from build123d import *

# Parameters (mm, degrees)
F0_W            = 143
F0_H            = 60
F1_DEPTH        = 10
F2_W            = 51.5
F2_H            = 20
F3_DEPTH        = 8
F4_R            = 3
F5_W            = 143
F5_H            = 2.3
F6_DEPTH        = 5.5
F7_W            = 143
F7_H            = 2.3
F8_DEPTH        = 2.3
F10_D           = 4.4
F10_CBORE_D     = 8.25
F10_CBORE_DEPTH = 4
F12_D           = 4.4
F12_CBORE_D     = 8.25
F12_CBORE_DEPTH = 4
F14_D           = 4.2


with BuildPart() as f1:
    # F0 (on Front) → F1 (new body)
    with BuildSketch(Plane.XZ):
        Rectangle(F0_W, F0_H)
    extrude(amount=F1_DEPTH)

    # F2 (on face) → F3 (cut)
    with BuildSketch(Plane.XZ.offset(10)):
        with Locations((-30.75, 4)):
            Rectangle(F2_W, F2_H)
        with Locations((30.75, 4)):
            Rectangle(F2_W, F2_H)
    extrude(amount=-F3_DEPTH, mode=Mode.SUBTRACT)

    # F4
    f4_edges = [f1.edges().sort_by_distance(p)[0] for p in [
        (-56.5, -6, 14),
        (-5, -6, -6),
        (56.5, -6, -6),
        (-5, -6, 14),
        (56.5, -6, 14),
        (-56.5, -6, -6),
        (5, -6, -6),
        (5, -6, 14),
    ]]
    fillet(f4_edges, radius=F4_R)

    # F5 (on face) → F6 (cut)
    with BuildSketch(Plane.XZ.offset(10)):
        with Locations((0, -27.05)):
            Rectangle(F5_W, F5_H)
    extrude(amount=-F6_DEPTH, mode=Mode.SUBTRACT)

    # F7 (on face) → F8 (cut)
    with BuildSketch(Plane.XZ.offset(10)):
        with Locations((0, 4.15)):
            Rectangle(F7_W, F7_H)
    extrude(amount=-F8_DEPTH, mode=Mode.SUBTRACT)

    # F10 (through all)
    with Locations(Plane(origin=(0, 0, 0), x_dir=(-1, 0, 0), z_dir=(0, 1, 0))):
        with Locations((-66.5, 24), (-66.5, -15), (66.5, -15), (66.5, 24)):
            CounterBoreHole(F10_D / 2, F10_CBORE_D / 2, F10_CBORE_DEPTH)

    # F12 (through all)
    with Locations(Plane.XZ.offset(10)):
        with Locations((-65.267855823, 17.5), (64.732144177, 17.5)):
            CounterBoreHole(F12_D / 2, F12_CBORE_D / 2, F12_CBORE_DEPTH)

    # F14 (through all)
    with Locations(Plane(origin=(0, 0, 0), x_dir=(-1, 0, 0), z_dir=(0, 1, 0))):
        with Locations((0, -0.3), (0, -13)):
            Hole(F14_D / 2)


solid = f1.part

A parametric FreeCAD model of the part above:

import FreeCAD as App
import Part
import Sketcher


def edges_at(feature, points):
    """Names of the edges that pass closest to the given points."""
    edges = feature.Shape.Edges
    near = lambda p: min(range(len(edges)), key=lambda i: edges[i].distToShape(Part.Vertex(*p))[0])
    return sorted({f"Edge{near(p) + 1}" for p in points})

doc = App.newDocument("Part")
params = doc.addObject("Spreadsheet::Sheet", "Params")
for row, (alias, value) in enumerate([
    ("sketch1_width", "143 mm"),
    ("sketch1_height", "60 mm"),
    ("pad1_length", "10 mm"),
    ("sketch2_height", "20 mm"),
    ("sketch2_width", "51.5 mm"),
    ("pocket1_length", "8 mm"),
    ("fillet_radius", "3 mm"),
    ("sketch3_width", "143 mm"),
    ("sketch3_height", "2.3 mm"),
    ("pocket2_length", "5.5 mm"),
    ("sketch4_width", "143 mm"),
    ("sketch4_height", "2.3 mm"),
    ("pocket3_length", "2.3 mm"),
    ("sketch5_diameter", "4.4 mm"),
    ("hole_diameter", "4.4 mm"),
    ("hole_cbore_diameter", "8.25 mm"),
    ("hole_cbore_depth", "4 mm"),
    ("sketch6_diameter", "4.4 mm"),
    ("hole2_diameter", "4.4 mm"),
    ("hole2_cbore_diameter", "8.25 mm"),
    ("hole2_cbore_depth", "4 mm"),
    ("sketch7_diameter", "4.2 mm"),
    ("hole3_diameter", "4.2 mm"),
], start=1):
    params.set(f"A{row}", alias)
    params.set(f"B{row}", "=" + value)
    params.setAlias(f"B{row}", alias)

body = doc.addObject("PartDesign::Body", "Body")

# Sketch on XZ plane
sketch1 = body.newObject("Sketcher::SketchObject", "Sketch")
sketch1.AttachmentSupport = (doc.getObject("XZ_Plane"), [""])
sketch1.MapMode = "FlatFace"
sketch1.addGeometry([
    Part.LineSegment(App.Vector(-72, 30, 0), App.Vector(-72, -30, 0)),
    Part.LineSegment(App.Vector(-72, -30, 0), App.Vector(72, -30, 0)),
    Part.LineSegment(App.Vector(72, -30, 0), App.Vector(72, 30, 0)),
    Part.LineSegment(App.Vector(72, 30, 0), App.Vector(-72, 30, 0)),
], False)
sketch1.addConstraint([
    Sketcher.Constraint("Coincident", 0, 2, 1, 1),
    Sketcher.Constraint("Coincident", 1, 2, 2, 1),
    Sketcher.Constraint("Coincident", 2, 2, 3, 1),
    Sketcher.Constraint("Coincident", 3, 2, 0, 1),
    Sketcher.Constraint("Vertical", 0),
    Sketcher.Constraint("Horizontal", 1),
    Sketcher.Constraint("Vertical", 2),
    Sketcher.Constraint("Horizontal", 3),
    Sketcher.Constraint("Symmetric", 0, 2, 2, 2, -1, 1),
    Sketcher.Constraint("DistanceX", 1, 1, 1, 2, 143.0),
    Sketcher.Constraint("DistanceY", 0, 2, 0, 1, 60.0),
])
sketch1.setExpression("Constraints[9]", "Params.sketch1_width")
sketch1.setExpression("Constraints[10]", "Params.sketch1_height")
pad1 = body.newObject("PartDesign::Pad", "Pad")
pad1.Profile = sketch1
pad1.setExpression("Length", "Params.pad1_length")

# Sketch on XZ plane
sketch2 = body.newObject("Sketcher::SketchObject", "Sketch001")
sketch2.AttachmentSupport = (doc.getObject("XZ_Plane"), [""])
sketch2.MapMode = "FlatFace"
sketch2.AttachmentOffset = App.Placement(App.Vector(0, 0, 10), App.Rotation())
sketch2.addGeometry([
    Part.LineSegment(App.Vector(-56, 14, 0), App.Vector(-56, -6, 0)),  # 0
    Part.LineSegment(App.Vector(-56, -6, 0), App.Vector(-5, -6, 0)),  # 1
    Part.LineSegment(App.Vector(-5, -6, 0), App.Vector(-5, 14, 0)),  # 2
    Part.LineSegment(App.Vector(-5, 14, 0), App.Vector(-56, 14, 0)),  # 3
    Part.LineSegment(App.Vector(5, 14, 0), App.Vector(5, -6, 0)),  # 4
    Part.LineSegment(App.Vector(5, -6, 0), App.Vector(56, -6, 0)),  # 5
    Part.LineSegment(App.Vector(56, -6, 0), App.Vector(56, 14, 0)),  # 6
    Part.LineSegment(App.Vector(56, 14, 0), App.Vector(5, 14, 0)),  # 7
], False)
sketch2.addConstraint([
    Sketcher.Constraint("Coincident", 0, 2, 1, 1),
    Sketcher.Constraint("Coincident", 1, 2, 2, 1),
    Sketcher.Constraint("Coincident", 2, 2, 3, 1),
    Sketcher.Constraint("Coincident", 3, 2, 0, 1),
    Sketcher.Constraint("Coincident", 4, 2, 5, 1),
    Sketcher.Constraint("Coincident", 5, 2, 6, 1),
    Sketcher.Constraint("Coincident", 6, 2, 7, 1),
    Sketcher.Constraint("Coincident", 7, 2, 4, 1),
    Sketcher.Constraint("Vertical", 0),
    Sketcher.Constraint("Horizontal", 1),
    Sketcher.Constraint("Vertical", 2),
    Sketcher.Constraint("Horizontal", 3),
    Sketcher.Constraint("Vertical", 4),
    Sketcher.Constraint("Horizontal", 5),
    Sketcher.Constraint("Vertical", 6),
    Sketcher.Constraint("Horizontal", 7),
    Sketcher.Constraint("Symmetric", 1, 2, 4, 2, -2),
    Sketcher.Constraint("Symmetric", 3, 2, 6, 2, -2),
    Sketcher.Constraint("DistanceY", 0, 2, 0, 1, 20.0),
    Sketcher.Constraint("DistanceX", 1, 1, 1, 2, 51.5),
    Sketcher.Constraint("DistanceY", 0, 2, -1, 1, 6.0),
    Sketcher.Constraint("DistanceX", 1, 2, -1, 1, 5.0),
])
sketch2.setExpression("Constraints[18]", "Params.sketch2_height")
sketch2.setExpression("Constraints[19]", "Params.sketch2_width")
pocket1 = body.newObject("PartDesign::Pocket", "Pocket")
pocket1.Profile = sketch2
pocket1.setExpression("Length", "Params.pocket1_length")
doc.recompute()

fillet = body.newObject("PartDesign::Fillet", "Fillet")
fillet.Base = (pocket1, edges_at(pocket1, [
    (-56.5, -6, 14),
    (-5, -6, -6),
    (56.5, -6, -6),
    (-5, -6, 14),
    (56.5, -6, 14),
    (-56.5, -6, -6),
    (5, -6, -6),
    (5, -6, 14),
]))
fillet.setExpression("Radius", "Params.fillet_radius")

# Sketch on XZ plane
sketch3 = body.newObject("Sketcher::SketchObject", "Sketch002")
sketch3.AttachmentSupport = (doc.getObject("XZ_Plane"), [""])
sketch3.MapMode = "FlatFace"
sketch3.AttachmentOffset = App.Placement(App.Vector(0, 0, 10), App.Rotation())
sketch3.addGeometry([
    Part.LineSegment(App.Vector(-71.5, -25.9, 0), App.Vector(-71.5, -28.2, 0)),
    Part.LineSegment(App.Vector(-71.5, -28.2, 0), App.Vector(71.5, -28.2, 0)),
    Part.LineSegment(App.Vector(71.5, -28.2, 0), App.Vector(71.5, -25.9, 0)),
    Part.LineSegment(App.Vector(71.5, -25.9, 0), App.Vector(-71.5, -25.9, 0)),
], False)
sketch3.addConstraint([
    Sketcher.Constraint("Coincident", 0, 2, 1, 1),
    Sketcher.Constraint("Coincident", 1, 2, 2, 1),
    Sketcher.Constraint("Coincident", 2, 2, 3, 1),
    Sketcher.Constraint("Coincident", 3, 2, 0, 1),
    Sketcher.Constraint("Vertical", 0),
    Sketcher.Constraint("Horizontal", 1),
    Sketcher.Constraint("Vertical", 2),
    Sketcher.Constraint("Horizontal", 3),
    Sketcher.Constraint("DistanceX", 1, 1, 1, 2, 143.0),
    Sketcher.Constraint("DistanceY", 0, 2, 0, 1, 2.3),
    Sketcher.Constraint("DistanceX", 0, 2, -1, 1, 71.5),
    Sketcher.Constraint("DistanceY", 0, 2, -1, 1, 28.2),
])
sketch3.setExpression("Constraints[8]", "Params.sketch3_width")
sketch3.setExpression("Constraints[9]", "Params.sketch3_height")
pocket2 = body.newObject("PartDesign::Pocket", "Pocket001")
pocket2.Profile = sketch3
pocket2.setExpression("Length", "Params.pocket2_length")

# Sketch on XZ plane
sketch4 = body.newObject("Sketcher::SketchObject", "Sketch003")
sketch4.AttachmentSupport = (doc.getObject("XZ_Plane"), [""])
sketch4.MapMode = "FlatFace"
sketch4.AttachmentOffset = App.Placement(App.Vector(0, 0, 10), App.Rotation())
sketch4.addGeometry([
    Part.LineSegment(App.Vector(-71.5, 5.3, 0), App.Vector(-71.5, 3, 0)),
    Part.LineSegment(App.Vector(-71.5, 3, 0), App.Vector(71.5, 3, 0)),
    Part.LineSegment(App.Vector(71.5, 3, 0), App.Vector(71.5, 5.3, 0)),
    Part.LineSegment(App.Vector(71.5, 5.3, 0), App.Vector(-71.5, 5.3, 0)),
], False)
sketch4.addConstraint([
    Sketcher.Constraint("Coincident", 0, 2, 1, 1),
    Sketcher.Constraint("Coincident", 1, 2, 2, 1),
    Sketcher.Constraint("Coincident", 2, 2, 3, 1),
    Sketcher.Constraint("Coincident", 3, 2, 0, 1),
    Sketcher.Constraint("Vertical", 0),
    Sketcher.Constraint("Horizontal", 1),
    Sketcher.Constraint("Vertical", 2),
    Sketcher.Constraint("Horizontal", 3),
    Sketcher.Constraint("DistanceX", 1, 1, 1, 2, 143.0),
    Sketcher.Constraint("DistanceY", 0, 2, 0, 1, 2.3),
    Sketcher.Constraint("DistanceY", -1, 1, 0, 2, 3.0),
    Sketcher.Constraint("DistanceX", 0, 2, -1, 1, 71.5),
])
sketch4.setExpression("Constraints[8]", "Params.sketch4_width")
sketch4.setExpression("Constraints[9]", "Params.sketch4_height")
pocket3 = body.newObject("PartDesign::Pocket", "Pocket002")
pocket3.Profile = sketch4
pocket3.setExpression("Length", "Params.pocket3_length")

# Sketch on XZ plane
sketch5 = body.newObject("Sketcher::SketchObject", "Sketch004")
sketch5.AttachmentSupport = (doc.getObject("XZ_Plane"), [""])
sketch5.MapMode = "FlatFace"
sketch5.addGeometry([
    Part.Circle(App.Vector(66.5, 24, 0), App.Vector(0, 0, 1), 2.2),
    Part.Circle(App.Vector(66.5, -15, 0), App.Vector(0, 0, 1), 2.2),
    Part.Circle(App.Vector(-66.5, -15, 0), App.Vector(0, 0, 1), 2.2),
    Part.Circle(App.Vector(-66.5, 24, 0), App.Vector(0, 0, 1), 2.2),
], False)
sketch5.addConstraint([
    Sketcher.Constraint("Equal", 0, 1),
    Sketcher.Constraint("Equal", 1, 2),
    Sketcher.Constraint("Equal", 2, 3),
    Sketcher.Constraint("Symmetric", 1, 3, 2, 3, -2),
    Sketcher.Constraint("Symmetric", 0, 3, 3, 3, -2),
    Sketcher.Constraint("Vertical", 0, 3, 1, 3),
    Sketcher.Constraint("Diameter", 0, 4.4),
    Sketcher.Constraint("DistanceY", -1, 1, 0, 3, 24.0),
    Sketcher.Constraint("DistanceY", 1, 3, -1, 1, 15.0),
    Sketcher.Constraint("DistanceX", 2, 3, 1, 3, 133.0),
])
sketch5.setExpression("Constraints[6]", "Params.sketch5_diameter")
doc.recompute()
hole = body.newObject("PartDesign::Hole", "Hole")
hole.Profile = sketch5
hole.ThreadType = "None"
hole.setExpression("Diameter", "Params.hole_diameter")
hole.DepthType = "ThroughAll"
hole.HoleCutType = "Counterbore"
hole.setExpression("HoleCutDiameter", "Params.hole_cbore_diameter")
hole.setExpression("HoleCutDepth", "Params.hole_cbore_depth")
hole.Reversed = True

# Sketch on XZ plane
sketch6 = body.newObject("Sketcher::SketchObject", "Sketch005")
sketch6.AttachmentSupport = (doc.getObject("XZ_Plane"), [""])
sketch6.MapMode = "FlatFace"
sketch6.AttachmentOffset = App.Placement(App.Vector(0, 0, 10), App.Rotation())
sketch6.addGeometry([
    Part.Circle(App.Vector(-65.3, 17.5, 0), App.Vector(0, 0, 1), 2.2),
    Part.Circle(App.Vector(64.7, 17.5, 0), App.Vector(0, 0, 1), 2.2),
], False)
sketch6.addConstraint([
    Sketcher.Constraint("Equal", 0, 1),
    Sketcher.Constraint("Horizontal", 0, 3, 1, 3),
    Sketcher.Constraint("Diameter", 0, 4.4),
    Sketcher.Constraint("DistanceX", 0, 3, 1, 3, 130.0),
    Sketcher.Constraint("DistanceY", -1, 1, 0, 3, 17.5),
    Sketcher.Constraint("DistanceX", 0, 3, -1, 1, 65.267856),
])
sketch6.setExpression("Constraints[2]", "Params.sketch6_diameter")
doc.recompute()
hole2 = body.newObject("PartDesign::Hole", "Hole001")
hole2.Profile = sketch6
hole2.ThreadType = "None"
hole2.setExpression("Diameter", "Params.hole2_diameter")
hole2.DepthType = "ThroughAll"
hole2.HoleCutType = "Counterbore"
hole2.setExpression("HoleCutDiameter", "Params.hole2_cbore_diameter")
hole2.setExpression("HoleCutDepth", "Params.hole2_cbore_depth")

# Sketch on XZ plane
sketch7 = body.newObject("Sketcher::SketchObject", "Sketch006")
sketch7.AttachmentSupport = (doc.getObject("XZ_Plane"), [""])
sketch7.MapMode = "FlatFace"
sketch7.addGeometry([
    Part.Circle(App.Vector(0, -0.3, 0), App.Vector(0, 0, 1), 2.1),
    Part.Circle(App.Vector(0, -13, 0), App.Vector(0, 0, 1), 2.1),
], False)
sketch7.addConstraint([
    Sketcher.Constraint("Equal", 0, 1),
    Sketcher.Constraint("PointOnObject", 0, 3, -2),
    Sketcher.Constraint("PointOnObject", 1, 3, -2),
    Sketcher.Constraint("Diameter", 0, 4.2),
    Sketcher.Constraint("DistanceY", 1, 3, -1, 1, 13.0),
    Sketcher.Constraint("DistanceY", 0, 3, -1, 1, 0.3),
])
sketch7.setExpression("Constraints[3]", "Params.sketch7_diameter")
doc.recompute()
hole3 = body.newObject("PartDesign::Hole", "Hole002")
hole3.Profile = sketch7
hole3.ThreadType = "None"
hole3.setExpression("Diameter", "Params.hole3_diameter")
hole3.DepthType = "ThroughAll"
hole3.Reversed = True

doc.recompute()
